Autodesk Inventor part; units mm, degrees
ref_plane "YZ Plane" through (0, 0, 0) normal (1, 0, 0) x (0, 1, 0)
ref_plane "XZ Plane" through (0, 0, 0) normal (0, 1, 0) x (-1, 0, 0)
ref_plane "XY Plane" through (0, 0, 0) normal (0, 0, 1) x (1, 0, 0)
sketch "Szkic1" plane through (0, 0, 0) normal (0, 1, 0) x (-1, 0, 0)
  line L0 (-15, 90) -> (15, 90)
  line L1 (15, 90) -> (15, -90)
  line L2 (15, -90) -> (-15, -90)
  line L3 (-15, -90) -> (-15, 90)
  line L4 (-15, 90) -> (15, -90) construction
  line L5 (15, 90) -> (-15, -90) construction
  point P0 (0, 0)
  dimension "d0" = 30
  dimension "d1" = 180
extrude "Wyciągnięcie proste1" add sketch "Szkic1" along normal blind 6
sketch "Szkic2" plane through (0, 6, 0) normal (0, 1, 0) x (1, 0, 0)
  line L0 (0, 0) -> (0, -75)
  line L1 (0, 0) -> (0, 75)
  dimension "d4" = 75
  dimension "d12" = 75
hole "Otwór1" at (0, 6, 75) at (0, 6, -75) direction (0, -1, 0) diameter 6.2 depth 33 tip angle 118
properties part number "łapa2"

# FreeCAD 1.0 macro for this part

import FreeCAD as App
import Part
import Sketcher
Q = App.Units.Quantity


def add_polygon(sketch, points):
    """Adds a closed chain of lines whose ends are joined by coincident constraints."""
    first, n = sketch.GeometryCount, len(points)
    for a, b in zip(points, points[1:] + points[:1]):
        sketch.addGeometry(Part.LineSegment(App.Vector(*a, 0), App.Vector(*b, 0)), False)
    for i in range(n):
        sketch.addConstraint(Sketcher.Constraint("Coincident", first + i, 2, first + (i + 1) % n, 1))

doc = App.newDocument("Part")
body = doc.addObject("PartDesign::Body", "Body")

sketch1 = body.newObject("Sketcher::SketchObject", "Sketch")
sketch1.AttachmentSupport = (doc.getObject("XZ_Plane"), [""])
sketch1.MapMode = "FlatFace"
add_polygon(sketch1, [(-15, 90), (15, 90), (15, -90), (-15, -90)])
sketch1.addConstraint([
    Sketcher.Constraint("Horizontal", 0),
    Sketcher.Constraint("Vertical", 1),
    Sketcher.Constraint("Horizontal", 2),
    Sketcher.Constraint("Vertical", 3),
    Sketcher.Constraint("Symmetric", 0, 2, 2, 2, -1, 1),
    Sketcher.Constraint("DistanceX", 0, 1, 0, 2, Q("30 mm")),
    Sketcher.Constraint("DistanceY", 1, 2, 1, 1, Q("180 mm")),
])
pad1 = body.newObject("PartDesign::Pad", "Pad")
pad1.Profile = sketch1
pad1.Length = 6
pad1.Reversed = True

sketch2 = body.newObject("Sketcher::SketchObject", "Sketch001")
sketch2.AttachmentSupport = (doc.getObject("XZ_Plane"), [""])
sketch2.MapMode = "FlatFace"
sketch2.AttachmentOffset = App.Placement(App.Vector(0, 0, -6), App.Rotation())
sketch2.addGeometry([
    Part.Circle(App.Vector(0, 75, 0), App.Vector(0, 0, 1), 3.1),
    Part.Circle(App.Vector(0, -75, 0), App.Vector(0, 0, 1), 3.1),
], False)
sketch2.addConstraint([
    Sketcher.Constraint("Equal", 0, 1),
    Sketcher.Constraint("Symmetric", 0, 3, 1, 3, -1, 1),
    Sketcher.Constraint("PointOnObject", 0, 3, -2),
    Sketcher.Constraint("Diameter", 0, Q("6.2 mm")),
    Sketcher.Constraint("DistanceY", -1, 1, 0, 3, Q("75 mm")),
])
doc.recompute()
hole = body.newObject("PartDesign::Hole", "Hole")
hole.Profile = sketch2
hole.ThreadType = "None"
hole.Diameter = 6.2
hole.DepthType = "Dimension"
hole.Depth = 33
hole.DrillPoint = "Angled"
hole.DrillPointAngle = 118
hole.Reversed = True

doc.recompute()
